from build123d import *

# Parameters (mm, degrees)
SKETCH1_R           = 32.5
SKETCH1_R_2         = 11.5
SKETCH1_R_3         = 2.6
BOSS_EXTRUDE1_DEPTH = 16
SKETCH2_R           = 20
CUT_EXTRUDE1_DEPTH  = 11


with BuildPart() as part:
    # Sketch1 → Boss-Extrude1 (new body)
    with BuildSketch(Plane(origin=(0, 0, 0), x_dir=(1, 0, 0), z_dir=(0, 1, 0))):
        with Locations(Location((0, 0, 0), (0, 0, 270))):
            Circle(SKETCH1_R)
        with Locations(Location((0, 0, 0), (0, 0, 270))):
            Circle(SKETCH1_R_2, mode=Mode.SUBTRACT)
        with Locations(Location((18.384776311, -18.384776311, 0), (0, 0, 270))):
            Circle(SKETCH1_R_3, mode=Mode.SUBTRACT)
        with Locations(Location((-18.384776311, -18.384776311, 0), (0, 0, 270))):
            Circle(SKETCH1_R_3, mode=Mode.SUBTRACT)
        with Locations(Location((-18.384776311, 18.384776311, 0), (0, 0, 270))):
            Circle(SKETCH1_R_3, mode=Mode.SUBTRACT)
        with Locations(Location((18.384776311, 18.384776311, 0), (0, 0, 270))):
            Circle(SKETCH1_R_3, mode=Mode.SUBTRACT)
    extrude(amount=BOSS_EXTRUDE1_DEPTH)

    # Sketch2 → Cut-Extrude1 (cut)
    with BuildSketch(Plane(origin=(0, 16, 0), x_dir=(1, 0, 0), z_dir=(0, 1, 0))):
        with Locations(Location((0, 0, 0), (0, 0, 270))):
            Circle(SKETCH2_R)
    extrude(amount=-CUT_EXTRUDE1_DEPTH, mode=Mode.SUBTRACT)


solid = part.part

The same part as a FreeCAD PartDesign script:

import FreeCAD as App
import Part
import Sketcher

doc = App.newDocument("Part")
body = doc.addObject("PartDesign::Body", "Body")

# Sketch on XZ plane
sketch1 = body.newObject("Sketcher::SketchObject", "Sketch")
sketch1.AttachmentSupport = (doc.getObject("XZ_Plane"), [""])
sketch1.MapMode = "FlatFace"
sketch1.addGeometry([
    Part.Circle(App.Vector(0, 0, 0), App.Vector(0, 0, 1), 32.5),  # 0
    Part.Circle(App.Vector(-18.384776, -18.384776, 0), App.Vector(0, 0, 1), 2.6),  # 1
    Part.Circle(App.Vector(-18.384776, 18.384776, 0), App.Vector(0, 0, 1), 2.6),  # 2
    Part.Circle(App.Vector(0, 0, 0), App.Vector(0, 0, 1), 11.5),  # 3
    Part.Circle(App.Vector(18.384776, -18.384776, 0), App.Vector(0, 0, 1), 2.6),  # 4
    Part.Circle(App.Vector(18.384776, 18.384776, 0), App.Vector(0, 0, 1), 2.6),  # 5
], False)
sketch1.addConstraint([
    Sketcher.Constraint("Coincident", 0, 3, -1, 1),
    Sketcher.Constraint("Coincident", 3, 3, -1, 1),
    Sketcher.Constraint("Equal", 1, 2),
    Sketcher.Constraint("Equal", 2, 4),
    Sketcher.Constraint("Equal", 4, 5),
    Sketcher.Constraint("Symmetric", 2, 3, 4, 3, -1, 1),
    Sketcher.Constraint("Symmetric", 1, 3, 5, 3, -1, 1),
    Sketcher.Constraint("Symmetric", 1, 3, 4, 3, -2),
    Sketcher.Constraint("Diameter", 0, 65.0),
    Sketcher.Constraint("Diameter", 3, 23.0),
    Sketcher.Constraint("Diameter", 1, 5.2),
    Sketcher.Constraint("DistanceX", 1, 3, -1, 1, 18.384776),
    Sketcher.Constraint("DistanceY", 1, 3, -1, 1, 18.384776),
])
pad1 = body.newObject("PartDesign::Pad", "Pad")
pad1.Profile = sketch1
pad1.Length = 16
pad1.Reversed = True

# Sketch on XZ plane
sketch2 = body.newObject("Sketcher::SketchObject", "Sketch001")
sketch2.AttachmentSupport = (doc.getObject("XZ_Plane"), [""])
sketch2.MapMode = "FlatFace"
sketch2.AttachmentOffset = App.Placement(App.Vector(0, 0, -16), App.Rotation())
sketch2.addGeometry(Part.Circle(App.Vector(0, 0, 0), App.Vector(0, 0, 1), 20), False)
sketch2.addConstraint([
    Sketcher.Constraint("Coincident", 0, 3, -1, 1),
    Sketcher.Constraint("Diameter", 0, 40.0),
])
pocket1 = body.newObject("PartDesign::Pocket", "Pocket")
pocket1.Profile = sketch2
pocket1.Length = 11
pocket1.Reversed = True

doc.recompute()
